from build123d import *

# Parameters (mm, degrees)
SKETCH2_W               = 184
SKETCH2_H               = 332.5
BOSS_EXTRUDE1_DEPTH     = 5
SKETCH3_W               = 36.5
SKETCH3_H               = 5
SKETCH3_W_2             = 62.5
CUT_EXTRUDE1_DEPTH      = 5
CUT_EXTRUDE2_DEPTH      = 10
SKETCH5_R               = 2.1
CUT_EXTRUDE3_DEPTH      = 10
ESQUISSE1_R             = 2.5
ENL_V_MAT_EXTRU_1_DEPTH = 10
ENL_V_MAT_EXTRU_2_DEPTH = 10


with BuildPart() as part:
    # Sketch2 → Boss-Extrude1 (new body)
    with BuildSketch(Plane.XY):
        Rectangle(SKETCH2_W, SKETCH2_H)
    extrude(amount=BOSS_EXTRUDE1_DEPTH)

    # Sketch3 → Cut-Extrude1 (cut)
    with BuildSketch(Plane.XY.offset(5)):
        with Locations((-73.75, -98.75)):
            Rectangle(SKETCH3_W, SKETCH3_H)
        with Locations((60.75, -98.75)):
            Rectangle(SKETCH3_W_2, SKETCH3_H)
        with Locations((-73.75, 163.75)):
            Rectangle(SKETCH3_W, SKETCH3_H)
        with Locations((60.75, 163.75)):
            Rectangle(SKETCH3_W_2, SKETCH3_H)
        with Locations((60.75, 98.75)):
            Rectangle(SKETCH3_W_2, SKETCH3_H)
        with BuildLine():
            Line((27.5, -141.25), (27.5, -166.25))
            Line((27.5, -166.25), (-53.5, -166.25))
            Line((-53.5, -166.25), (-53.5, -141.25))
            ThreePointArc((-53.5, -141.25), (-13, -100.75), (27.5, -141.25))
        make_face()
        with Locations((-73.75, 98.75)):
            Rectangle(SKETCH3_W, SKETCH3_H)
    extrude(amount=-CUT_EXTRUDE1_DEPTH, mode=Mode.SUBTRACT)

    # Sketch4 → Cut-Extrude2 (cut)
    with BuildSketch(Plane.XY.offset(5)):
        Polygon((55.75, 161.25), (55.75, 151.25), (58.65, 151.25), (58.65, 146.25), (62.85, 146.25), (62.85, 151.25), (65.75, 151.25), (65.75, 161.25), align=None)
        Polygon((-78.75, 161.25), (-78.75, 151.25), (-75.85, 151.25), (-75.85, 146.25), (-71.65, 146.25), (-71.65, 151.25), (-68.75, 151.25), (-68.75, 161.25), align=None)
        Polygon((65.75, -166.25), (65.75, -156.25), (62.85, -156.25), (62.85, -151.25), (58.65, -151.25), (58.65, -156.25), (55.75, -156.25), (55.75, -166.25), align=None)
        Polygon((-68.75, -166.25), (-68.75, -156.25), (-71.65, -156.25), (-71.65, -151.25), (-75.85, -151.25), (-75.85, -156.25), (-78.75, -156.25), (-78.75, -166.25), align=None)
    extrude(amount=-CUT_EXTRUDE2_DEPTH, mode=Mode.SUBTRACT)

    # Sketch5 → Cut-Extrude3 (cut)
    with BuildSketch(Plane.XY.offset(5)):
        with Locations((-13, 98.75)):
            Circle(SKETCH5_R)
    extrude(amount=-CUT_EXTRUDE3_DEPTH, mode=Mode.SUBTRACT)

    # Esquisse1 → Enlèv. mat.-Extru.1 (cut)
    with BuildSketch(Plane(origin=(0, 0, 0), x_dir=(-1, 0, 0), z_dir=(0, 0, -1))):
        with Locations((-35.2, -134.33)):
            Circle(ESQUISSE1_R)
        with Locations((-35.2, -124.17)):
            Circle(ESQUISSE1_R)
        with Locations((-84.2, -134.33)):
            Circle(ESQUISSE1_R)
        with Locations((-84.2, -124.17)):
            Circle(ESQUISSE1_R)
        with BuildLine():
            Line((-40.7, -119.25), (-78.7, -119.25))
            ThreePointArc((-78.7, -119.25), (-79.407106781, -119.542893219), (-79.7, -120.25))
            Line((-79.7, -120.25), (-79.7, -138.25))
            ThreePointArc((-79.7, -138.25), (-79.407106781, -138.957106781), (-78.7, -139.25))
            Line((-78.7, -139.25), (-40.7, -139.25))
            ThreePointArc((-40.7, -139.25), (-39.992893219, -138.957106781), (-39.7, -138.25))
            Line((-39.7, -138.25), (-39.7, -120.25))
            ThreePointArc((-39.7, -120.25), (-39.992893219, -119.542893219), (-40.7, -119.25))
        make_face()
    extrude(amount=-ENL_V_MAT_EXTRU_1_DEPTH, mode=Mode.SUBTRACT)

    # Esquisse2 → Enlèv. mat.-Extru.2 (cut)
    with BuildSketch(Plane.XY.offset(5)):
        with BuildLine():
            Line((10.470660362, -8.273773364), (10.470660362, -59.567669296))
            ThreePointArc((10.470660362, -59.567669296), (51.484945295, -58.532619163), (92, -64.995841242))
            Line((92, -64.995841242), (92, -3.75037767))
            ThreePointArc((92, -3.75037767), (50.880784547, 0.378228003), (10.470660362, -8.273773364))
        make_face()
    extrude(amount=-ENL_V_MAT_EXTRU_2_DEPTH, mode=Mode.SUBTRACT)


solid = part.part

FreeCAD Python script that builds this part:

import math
import FreeCAD as App
import Part
import Sketcher
from FreeCAD import Vector


def add_polygon(sketch, points):
    """Adds a closed chain of lines whose ends are joined by coincident constraints."""
    first, n = sketch.GeometryCount, len(points)
    for a, b in zip(points, points[1:] + points[:1]):
        sketch.addGeometry(Part.LineSegment(App.Vector(*a, 0), App.Vector(*b, 0)), False)
    for i in range(n):
        sketch.addConstraint(Sketcher.Constraint("Coincident", first + i, 2, first + (i + 1) % n, 1))

doc = App.newDocument("Part")
params = doc.addObject("Spreadsheet::Sheet", "Params")
for row, (alias, value) in enumerate([
    ("sketch1_width", "184 mm"),
    ("sketch1_height", "332.5 mm"),
    ("pad1_length", "5 mm"),
    ("sketch2_radius", "40.5 mm"),
    ("sketch2_height", "5 mm"),
    ("sketch2_height2", "25 mm"),
    ("sketch2_width", "36.5 mm"),
    ("sketch2_width2", "62.5 mm"),
    ("pocket1_length", "5 mm"),
    ("sketch3_width", "10 mm"),
    ("sketch3_height", "5 mm"),
    ("sketch3_width2", "2.9 mm"),
    ("pocket2_length", "10 mm"),
    ("sketch4_diameter", "4.2 mm"),
    ("pocket3_length", "10 mm"),
    ("sketch5_diameter", "5 mm"),
    ("sketch5_radius", "1 mm"),
    ("sketch5_width", "38 mm"),
    ("sketch5_height", "18 mm"),
    ("pocket4_length", "10 mm"),
    ("pocket5_length", "10 mm"),
], start=1):
    params.set(f"A{row}", alias)
    params.set(f"B{row}", "=" + value)
    params.setAlias(f"B{row}", alias)

body = doc.addObject("PartDesign::Body", "Body")

# Sketch on XY plane
sketch1 = doc.addObject("Sketcher::SketchObject", "Sketch")
body.addObject(sketch1)
sketch1.AttachmentSupport = (doc.XY_Plane, [""])
sketch1.MapMode = "FlatFace"
add_polygon(sketch1, [(-92, 166), (-92, -166), (92, -166), (92, 166)])  # lines 0-3
sketch1.addConstraint(Sketcher.Constraint("Vertical", 0))
sketch1.addConstraint(Sketcher.Constraint("Horizontal", 1))
sketch1.addConstraint(Sketcher.Constraint("Vertical", 2))
sketch1.addConstraint(Sketcher.Constraint("Horizontal", 3))
sketch1.addConstraint(Sketcher.Constraint("Symmetric", 0, 2, 2, 2, -1, 1))
sketch1.addConstraint(Sketcher.Constraint("DistanceX", 1, 1, 1, 2, 184.0))
sketch1.addConstraint(Sketcher.Constraint("DistanceY", 0, 2, 0, 1, 332.5))
sketch1.setExpression("Constraints[9]", "Params.sketch1_width")
sketch1.setExpression("Constraints[10]", "Params.sketch1_height")
pad1 = doc.addObject("PartDesign::Pad", "Pad")
body.addObject(pad1)
pad1.Profile = sketch1
pad1.setExpression("Length", "Params.pad1_length")

# Sketch on XY plane
sketch2 = doc.addObject("Sketcher::SketchObject", "Sketch001")
body.addObject(sketch2)
sketch2.AttachmentSupport = (doc.XY_Plane, [""])
sketch2.MapMode = "FlatFace"
sketch2.AttachmentOffset = App.Placement(Vector(0, 0, 5), App.Rotation())
add_polygon(sketch2, [(-92, -96), (-92, -101), (-56, -101), (-56, -96)])  # lines 0-3
add_polygon(sketch2, [(30, -96), (30, -101), (92, -101), (92, -96)])  # lines 4-7
add_polygon(sketch2, [(-92, 166), (-92, 161), (-56, 161), (-56, 166)])  # lines 8-11
add_polygon(sketch2, [(30, 166), (30, 161), (92, 161), (92, 166)])  # lines 12-15
add_polygon(sketch2, [(30, 101), (30, 96), (92, 96), (92, 101)])  # lines 16-19
sketch2.addGeometry(Part.LineSegment(Vector(28, -166, 0), Vector(28, -141, 0)), False)  # 20
sketch2.addGeometry(Part.ArcOfCircle(Part.Circle(Vector(-13, -141, 0), Vector(0, 0, 1), 40), math.radians(0), math.radians(180)), False)  # 21
sketch2.addGeometry(Part.LineSegment(Vector(-54, -141, 0), Vector(-54, -166, 0)), False)  # 22
sketch2.addGeometry(Part.LineSegment(Vector(-54, -166, 0), Vector(28, -166, 0)), False)  # 23
add_polygon(sketch2, [(-92, 101), (-92, 96), (-56, 96), (-56, 101)])  # lines 24-27
sketch2.addConstraint(Sketcher.Constraint("Tangent", 20, 2, 21, 1))
sketch2.addConstraint(Sketcher.Constraint("Tangent", 21, 2, 22, 1))
sketch2.addConstraint(Sketcher.Constraint("Coincident", 22, 2, 23, 1))
sketch2.addConstraint(Sketcher.Constraint("Coincident", 23, 2, 20, 1))
sketch2.addConstraint(Sketcher.Constraint("Vertical", 0))
sketch2.addConstraint(Sketcher.Constraint("Horizontal", 1))
sketch2.addConstraint(Sketcher.Constraint("Vertical", 2))
sketch2.addConstraint(Sketcher.Constraint("Horizontal", 3))
sketch2.addConstraint(Sketcher.Constraint("Vertical", 4))
sketch2.addConstraint(Sketcher.Constraint("Horizontal", 5))
sketch2.addConstraint(Sketcher.Constraint("Vertical", 6))
sketch2.addConstraint(Sketcher.Constraint("Horizontal", 7))
sketch2.addConstraint(Sketcher.Constraint("Vertical", 8))
sketch2.addConstraint(Sketcher.Constraint("Horizontal", 9))
sketch2.addConstraint(Sketcher.Constraint("Vertical", 10))
sketch2.addConstraint(Sketcher.Constraint("Horizontal", 11))
sketch2.addConstraint(Sketcher.Constraint("Vertical", 12))
sketch2.addConstraint(Sketcher.Constraint("Horizontal", 13))
sketch2.addConstraint(Sketcher.Constraint("Vertical", 14))
sketch2.addConstraint(Sketcher.Constraint("Horizontal", 15))
sketch2.addConstraint(Sketcher.Constraint("Vertical", 16))
sketch2.addConstraint(Sketcher.Constraint("Horizontal", 17))
sketch2.addConstraint(Sketcher.Constraint("Vertical", 18))
sketch2.addConstraint(Sketcher.Constraint("Horizontal", 19))
sketch2.addConstraint(Sketcher.Constraint("Vertical", 20))
sketch2.addConstraint(Sketcher.Constraint("Vertical", 22))
sketch2.addConstraint(Sketcher.Constraint("Horizontal", 23))
sketch2.addConstraint(Sketcher.Constraint("Vertical", 24))
sketch2.addConstraint(Sketcher.Constraint("Horizontal", 25))
sketch2.addConstraint(Sketcher.Constraint("Vertical", 26))
sketch2.addConstraint(Sketcher.Constraint("Horizontal", 27))
sketch2.addConstraint(Sketcher.Constraint("Symmetric", 3, 2, 17, 2, -1, 1))
sketch2.addConstraint(Sketcher.Constraint("Symmetric", 6, 2, 24, 2, -1, 1))
sketch2.addConstraint(Sketcher.Constraint("Symmetric", 0, 2, 5, 2, -2))
sketch2.addConstraint(Sketcher.Constraint("Symmetric", 8, 2, 13, 2, -2))
sketch2.addConstraint(Sketcher.Constraint("Symmetric", 7, 2, 16, 2, -1))
sketch2.addConstraint(Sketcher.Constraint("Symmetric", 1, 2, 26, 2, -1))
sketch2.addConstraint(Sketcher.Constraint("Horizontal", 11, 2, 14, 2))
sketch2.addConstraint(Sketcher.Constraint("Horizontal", 19, 2, 26, 2))
sketch2.addConstraint(Sketcher.Constraint("Vertical", 3, 2, 8, 2))
sketch2.addConstraint(Sketcher.Constraint("Vertical", 2, 2, 9, 2))
sketch2.addConstraint(Sketcher.Constraint("Vertical", 7, 2, 12, 2))
sketch2.addConstraint(Sketcher.Constraint("Equal", 6, 8))
sketch2.addConstraint(Sketcher.Constraint("Radius", 21, 40.5))
sketch2.addConstraint(Sketcher.Constraint("DistanceY", 0, 2, 0, 1, 5.0))
sketch2.addConstraint(Sketcher.Constraint("DistanceY", 20, 1, 20, 2, 25.0))
sketch2.addConstraint(Sketcher.Constraint("DistanceX", 1, 1, 1, 2, 36.5))
sketch2.addConstraint(Sketcher.Constraint("DistanceX", 5, 1, 5, 2, 62.5))
sketch2.addConstraint(Sketcher.Constraint("DistanceX", 21, 3, -1, 1, 13.0))
sketch2.addConstraint(Sketcher.Constraint("DistanceX", 0, 2, -1, 1, 92.0))
sketch2.addConstraint(Sketcher.Constraint("DistanceY", 21, 3, 0, 2, 40.0))
sketch2.addConstraint(Sketcher.Constraint("DistanceY", 16, 2, 12, 2, 65.0))
sketch2.addConstraint(Sketcher.Constraint("DistanceY", 3, 2, 8, 2, 257.5))
sketch2.setExpression("Constraints[67]", "Params.sketch2_radius")
sketch2.setExpression("Constraints[68]", "Params.sketch2_height")
sketch2.setExpression("Constraints[69]", "Params.sketch2_height2")
sketch2.setExpression("Constraints[70]", "Params.sketch2_width")
sketch2.setExpression("Constraints[71]", "Params.sketch2_width2")
pocket1 = doc.addObject("PartDesign::Pocket", "Pocket")
body.addObject(pocket1)
pocket1.Profile = sketch2
pocket1.setExpression("Length", "Params.pocket1_length")

# Sketch on XY plane
sketch3 = doc.addObject("Sketcher::SketchObject", "Sketch002")
body.addObject(sketch3)
sketch3.AttachmentSupport = (doc.XY_Plane, [""])
sketch3.MapMode = "FlatFace"
sketch3.AttachmentOffset = App.Placement(Vector(0, 0, 5), App.Rotation())
add_polygon(sketch3, [(55.8, 161.2), (55.8, 151.2), (58.6, 151.2), (58.6, 146.2), (62.9, 146.2), (62.9, 151.2), (65.8, 151.2), (65.8, 161.2)])  # lines 0-7
add_polygon(sketch3, [(-78.8, 161.2), (-78.8, 151.2), (-75.8, 151.2), (-75.8, 146.2), (-71.7, 146.2), (-71.7, 151.2), (-68.8, 151.2), (-68.8, 161.2)])  # lines 8-15
add_polygon(sketch3, [(65.8, -166.2), (65.8, -156.2), (62.9, -156.2), (62.9, -151.2), (58.6, -151.2), (58.6, -156.2), (55.8, -156.2), (55.8, -166.2)])  # lines 16-23
add_polygon(sketch3, [(-68.8, -166.2), (-68.8, -156.2), (-71.7, -156.2), (-71.7, -151.2), (-75.8, -151.2), (-75.8, -156.2), (-78.8, -156.2), (-78.8, -166.2)])  # lines 24-31
sketch3.addConstraint(Sketcher.Constraint("Vertical", 0))
sketch3.addConstraint(Sketcher.Constraint("Horizontal", 1))
sketch3.addConstraint(Sketcher.Constraint("Vertical", 2))
sketch3.addConstraint(Sketcher.Constraint("Horizontal", 3))
sketch3.addConstraint(Sketcher.Constraint("Vertical", 4))
sketch3.addConstraint(Sketcher.Constraint("Horizontal", 5))
sketch3.addConstraint(Sketcher.Constraint("Vertical", 6))
sketch3.addConstraint(Sketcher.Constraint("Horizontal", 7))
sketch3.addConstraint(Sketcher.Constraint("Vertical", 8))
sketch3.addConstraint(Sketcher.Constraint("Horizontal", 9))
sketch3.addConstraint(Sketcher.Constraint("Vertical", 10))
sketch3.addConstraint(Sketcher.Constraint("Horizontal", 11))
sketch3.addConstraint(Sketcher.Constraint("Vertical", 12))
sketch3.addConstraint(Sketcher.Constraint("Horizontal", 13))
sketch3.addConstraint(Sketcher.Constraint("Vertical", 14))
sketch3.addConstraint(Sketcher.Constraint("Horizontal", 15))
sketch3.addConstraint(Sketcher.Constraint("Vertical", 16))
sketch3.addConstraint(Sketcher.Constraint("Horizontal", 17))
sketch3.addConstraint(Sketcher.Constraint("Vertical", 18))
sketch3.addConstraint(Sketcher.Constraint("Horizontal", 19))
sketch3.addConstraint(Sketcher.Constraint("Vertical", 20))
sketch3.addConstraint(Sketcher.Constraint("Horizontal", 21))
sketch3.addConstraint(Sketcher.Constraint("Vertical", 22))
sketch3.addConstraint(Sketcher.Constraint("Horizontal", 23))
sketch3.addConstraint(Sketcher.Constraint("Vertical", 24))
sketch3.addConstraint(Sketcher.Constraint("Horizontal", 25))
sketch3.addConstraint(Sketcher.Constraint("Vertical", 26))
sketch3.addConstraint(Sketcher.Constraint("Horizontal", 27))
sketch3.addConstraint(Sketcher.Constraint("Vertical", 28))
sketch3.addConstraint(Sketcher.Constraint("Horizontal", 29))
sketch3.addConstraint(Sketcher.Constraint("Vertical", 30))
sketch3.addConstraint(Sketcher.Constraint("Horizontal", 31))
sketch3.addConstraint(Sketcher.Constraint("Symmetric", 4, 2, 18, 2, -1))
sketch3.addConstraint(Sketcher.Constraint("Symmetric", 1, 2, 19, 2, -1))
sketch3.addConstraint(Sketcher.Constraint("Symmetric", 12, 2, 26, 2, -1))
sketch3.addConstraint(Sketcher.Constraint("Symmetric", 9, 2, 27, 2, -1))
sketch3.addConstraint(Sketcher.Constraint("Horizontal", 5, 2, 8, 2))
sketch3.addConstraint(Sketcher.Constraint("Horizontal", 3, 2, 10, 2))
sketch3.addConstraint(Sketcher.Constraint("Horizontal", 7, 2, 14, 2))
sketch3.addConstraint(Sketcher.Constraint("Horizontal", 17, 2, 20, 2))
sketch3.addConstraint(Sketcher.Constraint("Horizontal", 21, 2, 24, 2))
sketch3.addConstraint(Sketcher.Constraint("Horizontal", 25, 2, 28, 2))
sketch3.addConstraint(Sketcher.Constraint("Horizontal", 23, 2, 30, 2))
sketch3.addConstraint(Sketcher.Constraint("Vertical", 6, 2, 16, 2))
sketch3.addConstraint(Sketcher.Constraint("Vertical", 7, 2, 21, 2))
sketch3.addConstraint(Sketcher.Constraint("Vertical", 14, 2, 24, 2))
sketch3.addConstraint(Sketcher.Constraint("Vertical", 15, 2, 29, 2))
sketch3.addConstraint(Sketcher.Constraint("Equal", 1, 5))
sketch3.addConstraint(Sketcher.Constraint("Equal", 5, 9))
sketch3.addConstraint(Sketcher.Constraint("Equal", 3, 11))
sketch3.addConstraint(Sketcher.Constraint("Equal", 9, 13))
sketch3.addConstraint(Sketcher.Constraint("Equal", 31, 0))
sketch3.addConstraint(Sketcher.Constraint("Equal", 14, 16))
sketch3.addConstraint(Sketcher.Constraint("Equal", 12, 18))
sketch3.addConstraint(Sketcher.Constraint("DistanceX", 7, 2, 7, 1, 10.0))
sketch3.addConstraint(Sketcher.Constraint("DistanceY", 2, 2, 2, 1, 5.0))
sketch3.addConstraint(Sketcher.Constraint("DistanceX", 1, 1, 1, 2, 2.9))
sketch3.addConstraint(Sketcher.Constraint("DistanceX", 8, 2, 0, 2, 134.5))
sketch3.addConstraint(Sketcher.Constraint("DistanceY", 16, 2, 3, 2, 302.5))
sketch3.addConstraint(Sketcher.Constraint("DistanceX", -1, 1, 0, 2, 55.75))
sketch3.setExpression("Constraints[86]", "Params.sketch3_width")
sketch3.setExpression("Constraints[87]", "Params.sketch3_height")
sketch3.setExpression("Constraints[88]", "Params.sketch3_width2")
pocket2 = doc.addObject("PartDesign::Pocket", "Pocket001")
body.addObject(pocket2)
pocket2.Profile = sketch3
pocket2.setExpression("Length", "Params.pocket2_length")

# Sketch on XY plane
sketch4 = doc.addObject("Sketcher::SketchObject", "Sketch003")
body.addObject(sketch4)
sketch4.AttachmentSupport = (doc.XY_Plane, [""])
sketch4.MapMode = "FlatFace"
sketch4.AttachmentOffset = App.Placement(Vector(0, 0, 5), App.Rotation())
sketch4.addGeometry(Part.Circle(Vector(-13, 98.8, 0), Vector(0, 0, 1), 2.1), False)
sketch4.addConstraint(Sketcher.Constraint("Diameter", 0, 4.2))
sketch4.addConstraint(Sketcher.Constraint("DistanceX", 0, 3, -1, 1, 13.0))
sketch4.addConstraint(Sketcher.Constraint("DistanceY", -1, 1, 0, 3, 98.75))
sketch4.setExpression("Constraints[0]", "Params.sketch4_diameter")
pocket3 = doc.addObject("PartDesign::Pocket", "Pocket002")
body.addObject(pocket3)
pocket3.Profile = sketch4
pocket3.setExpression("Length", "Params.pocket3_length")

# Sketch on XY plane
sketch5 = doc.addObject("Sketcher::SketchObject", "Sketch004")
body.addObject(sketch5)
sketch5.AttachmentSupport = (doc.XY_Plane, [""])
sketch5.MapMode = "FlatFace"
sketch5.addGeometry(Part.Circle(Vector(35.2, -134.3, 0), Vector(0, 0, 1), 2.5), False)
sketch5.addGeometry(Part.Circle(Vector(35.2, -124.2, 0), Vector(0, 0, 1), 2.5), False)
sketch5.addGeometry(Part.Circle(Vector(84.2, -134.3, 0), Vector(0, 0, 1), 2.5), False)
sketch5.addGeometry(Part.Circle(Vector(84.2, -124.2, 0), Vector(0, 0, 1), 2.5), False)
sketch5.addGeometry(Part.LineSegment(Vector(40.7, -119.2, 0), Vector(78.7, -119.2, 0)), False)
sketch5.addGeometry(Part.ArcOfCircle(Part.Circle(Vector(78.7, -120.3, 0), Vector(0, 0, 1), 1), math.radians(0), math.radians(90)), False)
sketch5.addGeometry(Part.LineSegment(Vector(79.7, -120.2, 0), Vector(79.7, -138.2, 0)), False)
sketch5.addGeometry(Part.ArcOfCircle(Part.Circle(Vector(78.7, -138.2, 0), Vector(0, 0, 1), 1), math.radians(-90), math.radians(0)), False)
sketch5.addGeometry(Part.LineSegment(Vector(78.7, -139.2, 0), Vector(40.7, -139.2, 0)), False)
sketch5.addGeometry(Part.ArcOfCircle(Part.Circle(Vector(40.7, -138.2, 0), Vector(0, 0, 1), 1), math.radians(-180), math.radians(-90)), False)
sketch5.addGeometry(Part.LineSegment(Vector(39.7, -138.2, 0), Vector(39.7, -120.2, 0)), False)
sketch5.addGeometry(Part.ArcOfCircle(Part.Circle(Vector(40.7, -120.3, 0), Vector(0, 0, 1), 1), math.radians(90), math.radians(180)), False)
sketch5.addConstraint(Sketcher.Constraint("Tangent", 4, 2, 5, 2))
sketch5.addConstraint(Sketcher.Constraint("Tangent", 5, 1, 6, 1))
sketch5.addConstraint(Sketcher.Constraint("Tangent", 6, 2, 7, 2))
sketch5.addConstraint(Sketcher.Constraint("Tangent", 7, 1, 8, 1))
sketch5.addConstraint(Sketcher.Constraint("Tangent", 8, 2, 9, 2))
sketch5.addConstraint(Sketcher.Constraint("Tangent", 9, 1, 10, 1))
sketch5.addConstraint(Sketcher.Constraint("Tangent", 10, 2, 11, 2))
sketch5.addConstraint(Sketcher.Constraint("Tangent", 11, 1, 4, 1))
sketch5.addConstraint(Sketcher.Constraint("Horizontal", 4))
sketch5.addConstraint(Sketcher.Constraint("Vertical", 6))
sketch5.addConstraint(Sketcher.Constraint("Horizontal", 8))
sketch5.addConstraint(Sketcher.Constraint("Vertical", 10))
sketch5.addConstraint(Sketcher.Constraint("Equal", 0, 1))
sketch5.addConstraint(Sketcher.Constraint("Equal", 1, 2))
sketch5.addConstraint(Sketcher.Constraint("Equal", 2, 3))
sketch5.addConstraint(Sketcher.Constraint("Equal", 5, 7))
sketch5.addConstraint(Sketcher.Constraint("Equal", 7, 9))
sketch5.addConstraint(Sketcher.Constraint("Equal", 9, 11))
sketch5.addConstraint(Sketcher.Constraint("Horizontal", 0, 3, 2, 3))
sketch5.addConstraint(Sketcher.Constraint("Horizontal", 1, 3, 3, 3))
sketch5.addConstraint(Sketcher.Constraint("Vertical", 0, 3, 1, 3))
sketch5.addConstraint(Sketcher.Constraint("Vertical", 2, 3, 3, 3))
sketch5.addConstraint(Sketcher.Constraint("Diameter", 0, 5.0))
sketch5.addConstraint(Sketcher.Constraint("Radius", 5, 1.0))
sketch5.addConstraint(Sketcher.Constraint("DistanceX", 4, 1, 4, 2, 38.0))
sketch5.addConstraint(Sketcher.Constraint("DistanceY", 6, 2, 6, 1, 18.0))
sketch5.addConstraint(Sketcher.Constraint("DistanceX", 0, 3, 2, 3, 49.0))
sketch5.addConstraint(Sketcher.Constraint("DistanceX", -1, 1, 0, 3, 35.2))
sketch5.addConstraint(Sketcher.Constraint("DistanceX", -1, 1, 5, 3, 78.7))
sketch5.addConstraint(Sketcher.Constraint("DistanceY", 0, 3, -1, 1, 134.33))
sketch5.addConstraint(Sketcher.Constraint("DistanceY", 1, 3, -1, 1, 124.17))
sketch5.addConstraint(Sketcher.Constraint("DistanceY", 5, 3, -1, 1, 120.25))
sketch5.setExpression("Constraints[22]", "Params.sketch5_diameter")
sketch5.setExpression("Constraints[23]", "Params.sketch5_radius")
sketch5.setExpression("Constraints[24]", "Params.sketch5_width")
sketch5.setExpression("Constraints[25]", "Params.sketch5_height")
pocket4 = doc.addObject("PartDesign::Pocket", "Pocket003")
body.addObject(pocket4)
pocket4.Profile = sketch5
pocket4.setExpression("Length", "Params.pocket4_length")
pocket4.Reversed = True

# Sketch on XY plane
sketch6 = doc.addObject("Sketcher::SketchObject", "Sketch005")
body.addObject(sketch6)
sketch6.AttachmentSupport = (doc.XY_Plane, [""])
sketch6.MapMode = "FlatFace"
sketch6.AttachmentOffset = App.Placement(Vector(0, 0, 5), App.Rotation())
sketch6.addGeometry(Part.LineSegment(Vector(10, -8, 0), Vector(10, -60, 0)), False)
sketch6.addGeometry(Part.ArcOfCircle(Part.Circle(Vector(37, -282, 0), Vector(0, 0, 1), 224), math.radians(76), math.radians(97)), False)
sketch6.addGeometry(Part.LineSegment(Vector(92, -65, 0), Vector(92, -4, 0)), False)
sketch6.addGeometry(Part.ArcOfCircle(Part.Circle(Vector(58, -133, 0), Vector(0, 0, 1), 133), math.radians(75), math.radians(111)), False)
sketch6.addConstraint(Sketcher.Constraint("Coincident", 0, 2, 1, 2))
sketch6.addConstraint(Sketcher.Constraint("Coincident", 1, 1, 2, 1))
sketch6.addConstraint(Sketcher.Constraint("Coincident", 2, 2, 3, 1))
sketch6.addConstraint(Sketcher.Constraint("Coincident", 3, 2, 0, 1))
sketch6.addConstraint(Sketcher.Constraint("Vertical", 0))
sketch6.addConstraint(Sketcher.Constraint("Vertical", 2))
sketch6.addConstraint(Sketcher.Constraint("DistanceX", -1, 1, 1, 1, 92.0))
sketch6.addConstraint(Sketcher.Constraint("Radius", 1, 223.988201))
sketch6.addConstraint(Sketcher.Constraint("Radius", 3, 133.421891))
sketch6.addConstraint(Sketcher.Constraint("DistanceY", 0, 2, 0, 1, 51.293896))
sketch6.addConstraint(Sketcher.Constraint("DistanceY", 2, 1, 2, 2, 61.245464))
sketch6.addConstraint(Sketcher.Constraint("DistanceX", -1, 1, 0, 2, 10.47066))
sketch6.addConstraint(Sketcher.Constraint("DistanceY", 0, 2, -1, 1, 59.567669))
sketch6.addConstraint(Sketcher.Constraint("DistanceY", 1, 1, -1, 1, 64.995841))
pocket5 = doc.addObject("PartDesign::Pocket", "Pocket004")
body.addObject(pocket5)
pocket5.Profile = sketch6
pocket5.setExpression("Length", "Params.pocket5_length")

doc.recompute()
